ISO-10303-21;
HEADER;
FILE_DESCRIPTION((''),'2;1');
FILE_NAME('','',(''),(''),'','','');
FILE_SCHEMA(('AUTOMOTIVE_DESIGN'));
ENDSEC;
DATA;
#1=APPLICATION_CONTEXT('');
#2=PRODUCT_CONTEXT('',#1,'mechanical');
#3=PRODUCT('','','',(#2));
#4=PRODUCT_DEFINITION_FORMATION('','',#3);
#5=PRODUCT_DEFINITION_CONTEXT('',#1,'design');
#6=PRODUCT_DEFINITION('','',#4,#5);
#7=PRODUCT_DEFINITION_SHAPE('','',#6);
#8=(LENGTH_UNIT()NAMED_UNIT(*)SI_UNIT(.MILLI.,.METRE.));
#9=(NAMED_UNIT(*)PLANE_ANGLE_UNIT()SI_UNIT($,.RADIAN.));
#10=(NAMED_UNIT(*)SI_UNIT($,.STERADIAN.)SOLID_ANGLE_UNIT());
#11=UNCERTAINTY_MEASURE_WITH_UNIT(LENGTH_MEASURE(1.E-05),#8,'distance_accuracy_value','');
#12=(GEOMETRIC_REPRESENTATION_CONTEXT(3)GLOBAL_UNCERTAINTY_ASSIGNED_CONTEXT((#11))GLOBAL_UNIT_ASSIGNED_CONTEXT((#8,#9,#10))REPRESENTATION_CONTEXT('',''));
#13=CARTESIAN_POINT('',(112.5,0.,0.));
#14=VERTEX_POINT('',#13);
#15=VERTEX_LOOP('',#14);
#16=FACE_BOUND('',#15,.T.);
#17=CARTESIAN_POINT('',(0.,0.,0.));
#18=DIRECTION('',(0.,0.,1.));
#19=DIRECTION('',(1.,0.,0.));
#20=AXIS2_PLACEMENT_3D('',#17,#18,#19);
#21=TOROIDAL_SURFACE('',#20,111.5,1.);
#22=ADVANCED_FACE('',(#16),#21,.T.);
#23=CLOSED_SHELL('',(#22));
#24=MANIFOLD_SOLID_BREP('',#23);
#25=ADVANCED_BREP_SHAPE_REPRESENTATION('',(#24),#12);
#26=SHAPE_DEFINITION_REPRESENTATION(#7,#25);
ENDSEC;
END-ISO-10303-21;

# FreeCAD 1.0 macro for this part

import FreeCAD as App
import Part
import Sketcher

V = App.Vector

doc = App.newDocument("Part")
body = doc.addObject("PartDesign::Body", "Body")

# Sketch on YZ plane
sketch1 = doc.addObject("Sketcher::SketchObject", "Sketch")
body.addObject(sketch1)
sketch1.AttachmentSupport = (doc.YZ_Plane, [""])
sketch1.MapMode = "FlatFace"
sketch1.addGeometry(Part.Circle(V(111.5, 0, 0), V(0, 0, 1), 1), False)
sketch1.addConstraint([
    Sketcher.Constraint("PointOnObject", 0, 3, -1),
    Sketcher.Constraint("Diameter", 0, 2.0),
    Sketcher.Constraint("DistanceX", -1, 1, 0, 3, 111.5),
])
revolution = doc.addObject("PartDesign::Revolution", "Revolution")
body.addObject(revolution)
revolution.Profile = sketch1
revolution.ReferenceAxis = (sketch1, ["V_Axis"])
revolution.Angle = 360

doc.recompute()
